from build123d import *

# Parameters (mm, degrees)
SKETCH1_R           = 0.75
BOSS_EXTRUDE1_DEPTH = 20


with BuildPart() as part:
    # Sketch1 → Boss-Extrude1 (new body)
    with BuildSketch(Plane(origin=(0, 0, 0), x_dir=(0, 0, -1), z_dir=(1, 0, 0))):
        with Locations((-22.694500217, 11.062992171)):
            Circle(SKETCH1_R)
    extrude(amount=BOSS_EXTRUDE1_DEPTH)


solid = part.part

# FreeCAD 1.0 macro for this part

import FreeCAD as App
import Part
import Sketcher

doc = App.newDocument("Part")
body = doc.addObject("PartDesign::Body", "Body")

sketch1 = body.newObject("Sketcher::SketchObject", "Sketch")
sketch1.AttachmentSupport = (doc.getObject("YZ_Plane"), [""])
sketch1.MapMode = "FlatFace"
sketch1.addGeometry(Part.Circle(App.Vector(11.062992, 22.6945, 0), App.Vector(0, 0, 1), 0.75), False)
sketch1.addConstraint(Sketcher.Constraint("Diameter", 0, 1.5))
sketch1.addConstraint(Sketcher.Constraint("DistanceY", -1, 1, 0, 3, 22.6945))
sketch1.addConstraint(Sketcher.Constraint("DistanceX", -1, 1, 0, 3, 11.062992))
pad1 = body.newObject("PartDesign::Pad", "Pad")
pad1.Profile = sketch1
pad1.Length = 20

doc.recompute()
